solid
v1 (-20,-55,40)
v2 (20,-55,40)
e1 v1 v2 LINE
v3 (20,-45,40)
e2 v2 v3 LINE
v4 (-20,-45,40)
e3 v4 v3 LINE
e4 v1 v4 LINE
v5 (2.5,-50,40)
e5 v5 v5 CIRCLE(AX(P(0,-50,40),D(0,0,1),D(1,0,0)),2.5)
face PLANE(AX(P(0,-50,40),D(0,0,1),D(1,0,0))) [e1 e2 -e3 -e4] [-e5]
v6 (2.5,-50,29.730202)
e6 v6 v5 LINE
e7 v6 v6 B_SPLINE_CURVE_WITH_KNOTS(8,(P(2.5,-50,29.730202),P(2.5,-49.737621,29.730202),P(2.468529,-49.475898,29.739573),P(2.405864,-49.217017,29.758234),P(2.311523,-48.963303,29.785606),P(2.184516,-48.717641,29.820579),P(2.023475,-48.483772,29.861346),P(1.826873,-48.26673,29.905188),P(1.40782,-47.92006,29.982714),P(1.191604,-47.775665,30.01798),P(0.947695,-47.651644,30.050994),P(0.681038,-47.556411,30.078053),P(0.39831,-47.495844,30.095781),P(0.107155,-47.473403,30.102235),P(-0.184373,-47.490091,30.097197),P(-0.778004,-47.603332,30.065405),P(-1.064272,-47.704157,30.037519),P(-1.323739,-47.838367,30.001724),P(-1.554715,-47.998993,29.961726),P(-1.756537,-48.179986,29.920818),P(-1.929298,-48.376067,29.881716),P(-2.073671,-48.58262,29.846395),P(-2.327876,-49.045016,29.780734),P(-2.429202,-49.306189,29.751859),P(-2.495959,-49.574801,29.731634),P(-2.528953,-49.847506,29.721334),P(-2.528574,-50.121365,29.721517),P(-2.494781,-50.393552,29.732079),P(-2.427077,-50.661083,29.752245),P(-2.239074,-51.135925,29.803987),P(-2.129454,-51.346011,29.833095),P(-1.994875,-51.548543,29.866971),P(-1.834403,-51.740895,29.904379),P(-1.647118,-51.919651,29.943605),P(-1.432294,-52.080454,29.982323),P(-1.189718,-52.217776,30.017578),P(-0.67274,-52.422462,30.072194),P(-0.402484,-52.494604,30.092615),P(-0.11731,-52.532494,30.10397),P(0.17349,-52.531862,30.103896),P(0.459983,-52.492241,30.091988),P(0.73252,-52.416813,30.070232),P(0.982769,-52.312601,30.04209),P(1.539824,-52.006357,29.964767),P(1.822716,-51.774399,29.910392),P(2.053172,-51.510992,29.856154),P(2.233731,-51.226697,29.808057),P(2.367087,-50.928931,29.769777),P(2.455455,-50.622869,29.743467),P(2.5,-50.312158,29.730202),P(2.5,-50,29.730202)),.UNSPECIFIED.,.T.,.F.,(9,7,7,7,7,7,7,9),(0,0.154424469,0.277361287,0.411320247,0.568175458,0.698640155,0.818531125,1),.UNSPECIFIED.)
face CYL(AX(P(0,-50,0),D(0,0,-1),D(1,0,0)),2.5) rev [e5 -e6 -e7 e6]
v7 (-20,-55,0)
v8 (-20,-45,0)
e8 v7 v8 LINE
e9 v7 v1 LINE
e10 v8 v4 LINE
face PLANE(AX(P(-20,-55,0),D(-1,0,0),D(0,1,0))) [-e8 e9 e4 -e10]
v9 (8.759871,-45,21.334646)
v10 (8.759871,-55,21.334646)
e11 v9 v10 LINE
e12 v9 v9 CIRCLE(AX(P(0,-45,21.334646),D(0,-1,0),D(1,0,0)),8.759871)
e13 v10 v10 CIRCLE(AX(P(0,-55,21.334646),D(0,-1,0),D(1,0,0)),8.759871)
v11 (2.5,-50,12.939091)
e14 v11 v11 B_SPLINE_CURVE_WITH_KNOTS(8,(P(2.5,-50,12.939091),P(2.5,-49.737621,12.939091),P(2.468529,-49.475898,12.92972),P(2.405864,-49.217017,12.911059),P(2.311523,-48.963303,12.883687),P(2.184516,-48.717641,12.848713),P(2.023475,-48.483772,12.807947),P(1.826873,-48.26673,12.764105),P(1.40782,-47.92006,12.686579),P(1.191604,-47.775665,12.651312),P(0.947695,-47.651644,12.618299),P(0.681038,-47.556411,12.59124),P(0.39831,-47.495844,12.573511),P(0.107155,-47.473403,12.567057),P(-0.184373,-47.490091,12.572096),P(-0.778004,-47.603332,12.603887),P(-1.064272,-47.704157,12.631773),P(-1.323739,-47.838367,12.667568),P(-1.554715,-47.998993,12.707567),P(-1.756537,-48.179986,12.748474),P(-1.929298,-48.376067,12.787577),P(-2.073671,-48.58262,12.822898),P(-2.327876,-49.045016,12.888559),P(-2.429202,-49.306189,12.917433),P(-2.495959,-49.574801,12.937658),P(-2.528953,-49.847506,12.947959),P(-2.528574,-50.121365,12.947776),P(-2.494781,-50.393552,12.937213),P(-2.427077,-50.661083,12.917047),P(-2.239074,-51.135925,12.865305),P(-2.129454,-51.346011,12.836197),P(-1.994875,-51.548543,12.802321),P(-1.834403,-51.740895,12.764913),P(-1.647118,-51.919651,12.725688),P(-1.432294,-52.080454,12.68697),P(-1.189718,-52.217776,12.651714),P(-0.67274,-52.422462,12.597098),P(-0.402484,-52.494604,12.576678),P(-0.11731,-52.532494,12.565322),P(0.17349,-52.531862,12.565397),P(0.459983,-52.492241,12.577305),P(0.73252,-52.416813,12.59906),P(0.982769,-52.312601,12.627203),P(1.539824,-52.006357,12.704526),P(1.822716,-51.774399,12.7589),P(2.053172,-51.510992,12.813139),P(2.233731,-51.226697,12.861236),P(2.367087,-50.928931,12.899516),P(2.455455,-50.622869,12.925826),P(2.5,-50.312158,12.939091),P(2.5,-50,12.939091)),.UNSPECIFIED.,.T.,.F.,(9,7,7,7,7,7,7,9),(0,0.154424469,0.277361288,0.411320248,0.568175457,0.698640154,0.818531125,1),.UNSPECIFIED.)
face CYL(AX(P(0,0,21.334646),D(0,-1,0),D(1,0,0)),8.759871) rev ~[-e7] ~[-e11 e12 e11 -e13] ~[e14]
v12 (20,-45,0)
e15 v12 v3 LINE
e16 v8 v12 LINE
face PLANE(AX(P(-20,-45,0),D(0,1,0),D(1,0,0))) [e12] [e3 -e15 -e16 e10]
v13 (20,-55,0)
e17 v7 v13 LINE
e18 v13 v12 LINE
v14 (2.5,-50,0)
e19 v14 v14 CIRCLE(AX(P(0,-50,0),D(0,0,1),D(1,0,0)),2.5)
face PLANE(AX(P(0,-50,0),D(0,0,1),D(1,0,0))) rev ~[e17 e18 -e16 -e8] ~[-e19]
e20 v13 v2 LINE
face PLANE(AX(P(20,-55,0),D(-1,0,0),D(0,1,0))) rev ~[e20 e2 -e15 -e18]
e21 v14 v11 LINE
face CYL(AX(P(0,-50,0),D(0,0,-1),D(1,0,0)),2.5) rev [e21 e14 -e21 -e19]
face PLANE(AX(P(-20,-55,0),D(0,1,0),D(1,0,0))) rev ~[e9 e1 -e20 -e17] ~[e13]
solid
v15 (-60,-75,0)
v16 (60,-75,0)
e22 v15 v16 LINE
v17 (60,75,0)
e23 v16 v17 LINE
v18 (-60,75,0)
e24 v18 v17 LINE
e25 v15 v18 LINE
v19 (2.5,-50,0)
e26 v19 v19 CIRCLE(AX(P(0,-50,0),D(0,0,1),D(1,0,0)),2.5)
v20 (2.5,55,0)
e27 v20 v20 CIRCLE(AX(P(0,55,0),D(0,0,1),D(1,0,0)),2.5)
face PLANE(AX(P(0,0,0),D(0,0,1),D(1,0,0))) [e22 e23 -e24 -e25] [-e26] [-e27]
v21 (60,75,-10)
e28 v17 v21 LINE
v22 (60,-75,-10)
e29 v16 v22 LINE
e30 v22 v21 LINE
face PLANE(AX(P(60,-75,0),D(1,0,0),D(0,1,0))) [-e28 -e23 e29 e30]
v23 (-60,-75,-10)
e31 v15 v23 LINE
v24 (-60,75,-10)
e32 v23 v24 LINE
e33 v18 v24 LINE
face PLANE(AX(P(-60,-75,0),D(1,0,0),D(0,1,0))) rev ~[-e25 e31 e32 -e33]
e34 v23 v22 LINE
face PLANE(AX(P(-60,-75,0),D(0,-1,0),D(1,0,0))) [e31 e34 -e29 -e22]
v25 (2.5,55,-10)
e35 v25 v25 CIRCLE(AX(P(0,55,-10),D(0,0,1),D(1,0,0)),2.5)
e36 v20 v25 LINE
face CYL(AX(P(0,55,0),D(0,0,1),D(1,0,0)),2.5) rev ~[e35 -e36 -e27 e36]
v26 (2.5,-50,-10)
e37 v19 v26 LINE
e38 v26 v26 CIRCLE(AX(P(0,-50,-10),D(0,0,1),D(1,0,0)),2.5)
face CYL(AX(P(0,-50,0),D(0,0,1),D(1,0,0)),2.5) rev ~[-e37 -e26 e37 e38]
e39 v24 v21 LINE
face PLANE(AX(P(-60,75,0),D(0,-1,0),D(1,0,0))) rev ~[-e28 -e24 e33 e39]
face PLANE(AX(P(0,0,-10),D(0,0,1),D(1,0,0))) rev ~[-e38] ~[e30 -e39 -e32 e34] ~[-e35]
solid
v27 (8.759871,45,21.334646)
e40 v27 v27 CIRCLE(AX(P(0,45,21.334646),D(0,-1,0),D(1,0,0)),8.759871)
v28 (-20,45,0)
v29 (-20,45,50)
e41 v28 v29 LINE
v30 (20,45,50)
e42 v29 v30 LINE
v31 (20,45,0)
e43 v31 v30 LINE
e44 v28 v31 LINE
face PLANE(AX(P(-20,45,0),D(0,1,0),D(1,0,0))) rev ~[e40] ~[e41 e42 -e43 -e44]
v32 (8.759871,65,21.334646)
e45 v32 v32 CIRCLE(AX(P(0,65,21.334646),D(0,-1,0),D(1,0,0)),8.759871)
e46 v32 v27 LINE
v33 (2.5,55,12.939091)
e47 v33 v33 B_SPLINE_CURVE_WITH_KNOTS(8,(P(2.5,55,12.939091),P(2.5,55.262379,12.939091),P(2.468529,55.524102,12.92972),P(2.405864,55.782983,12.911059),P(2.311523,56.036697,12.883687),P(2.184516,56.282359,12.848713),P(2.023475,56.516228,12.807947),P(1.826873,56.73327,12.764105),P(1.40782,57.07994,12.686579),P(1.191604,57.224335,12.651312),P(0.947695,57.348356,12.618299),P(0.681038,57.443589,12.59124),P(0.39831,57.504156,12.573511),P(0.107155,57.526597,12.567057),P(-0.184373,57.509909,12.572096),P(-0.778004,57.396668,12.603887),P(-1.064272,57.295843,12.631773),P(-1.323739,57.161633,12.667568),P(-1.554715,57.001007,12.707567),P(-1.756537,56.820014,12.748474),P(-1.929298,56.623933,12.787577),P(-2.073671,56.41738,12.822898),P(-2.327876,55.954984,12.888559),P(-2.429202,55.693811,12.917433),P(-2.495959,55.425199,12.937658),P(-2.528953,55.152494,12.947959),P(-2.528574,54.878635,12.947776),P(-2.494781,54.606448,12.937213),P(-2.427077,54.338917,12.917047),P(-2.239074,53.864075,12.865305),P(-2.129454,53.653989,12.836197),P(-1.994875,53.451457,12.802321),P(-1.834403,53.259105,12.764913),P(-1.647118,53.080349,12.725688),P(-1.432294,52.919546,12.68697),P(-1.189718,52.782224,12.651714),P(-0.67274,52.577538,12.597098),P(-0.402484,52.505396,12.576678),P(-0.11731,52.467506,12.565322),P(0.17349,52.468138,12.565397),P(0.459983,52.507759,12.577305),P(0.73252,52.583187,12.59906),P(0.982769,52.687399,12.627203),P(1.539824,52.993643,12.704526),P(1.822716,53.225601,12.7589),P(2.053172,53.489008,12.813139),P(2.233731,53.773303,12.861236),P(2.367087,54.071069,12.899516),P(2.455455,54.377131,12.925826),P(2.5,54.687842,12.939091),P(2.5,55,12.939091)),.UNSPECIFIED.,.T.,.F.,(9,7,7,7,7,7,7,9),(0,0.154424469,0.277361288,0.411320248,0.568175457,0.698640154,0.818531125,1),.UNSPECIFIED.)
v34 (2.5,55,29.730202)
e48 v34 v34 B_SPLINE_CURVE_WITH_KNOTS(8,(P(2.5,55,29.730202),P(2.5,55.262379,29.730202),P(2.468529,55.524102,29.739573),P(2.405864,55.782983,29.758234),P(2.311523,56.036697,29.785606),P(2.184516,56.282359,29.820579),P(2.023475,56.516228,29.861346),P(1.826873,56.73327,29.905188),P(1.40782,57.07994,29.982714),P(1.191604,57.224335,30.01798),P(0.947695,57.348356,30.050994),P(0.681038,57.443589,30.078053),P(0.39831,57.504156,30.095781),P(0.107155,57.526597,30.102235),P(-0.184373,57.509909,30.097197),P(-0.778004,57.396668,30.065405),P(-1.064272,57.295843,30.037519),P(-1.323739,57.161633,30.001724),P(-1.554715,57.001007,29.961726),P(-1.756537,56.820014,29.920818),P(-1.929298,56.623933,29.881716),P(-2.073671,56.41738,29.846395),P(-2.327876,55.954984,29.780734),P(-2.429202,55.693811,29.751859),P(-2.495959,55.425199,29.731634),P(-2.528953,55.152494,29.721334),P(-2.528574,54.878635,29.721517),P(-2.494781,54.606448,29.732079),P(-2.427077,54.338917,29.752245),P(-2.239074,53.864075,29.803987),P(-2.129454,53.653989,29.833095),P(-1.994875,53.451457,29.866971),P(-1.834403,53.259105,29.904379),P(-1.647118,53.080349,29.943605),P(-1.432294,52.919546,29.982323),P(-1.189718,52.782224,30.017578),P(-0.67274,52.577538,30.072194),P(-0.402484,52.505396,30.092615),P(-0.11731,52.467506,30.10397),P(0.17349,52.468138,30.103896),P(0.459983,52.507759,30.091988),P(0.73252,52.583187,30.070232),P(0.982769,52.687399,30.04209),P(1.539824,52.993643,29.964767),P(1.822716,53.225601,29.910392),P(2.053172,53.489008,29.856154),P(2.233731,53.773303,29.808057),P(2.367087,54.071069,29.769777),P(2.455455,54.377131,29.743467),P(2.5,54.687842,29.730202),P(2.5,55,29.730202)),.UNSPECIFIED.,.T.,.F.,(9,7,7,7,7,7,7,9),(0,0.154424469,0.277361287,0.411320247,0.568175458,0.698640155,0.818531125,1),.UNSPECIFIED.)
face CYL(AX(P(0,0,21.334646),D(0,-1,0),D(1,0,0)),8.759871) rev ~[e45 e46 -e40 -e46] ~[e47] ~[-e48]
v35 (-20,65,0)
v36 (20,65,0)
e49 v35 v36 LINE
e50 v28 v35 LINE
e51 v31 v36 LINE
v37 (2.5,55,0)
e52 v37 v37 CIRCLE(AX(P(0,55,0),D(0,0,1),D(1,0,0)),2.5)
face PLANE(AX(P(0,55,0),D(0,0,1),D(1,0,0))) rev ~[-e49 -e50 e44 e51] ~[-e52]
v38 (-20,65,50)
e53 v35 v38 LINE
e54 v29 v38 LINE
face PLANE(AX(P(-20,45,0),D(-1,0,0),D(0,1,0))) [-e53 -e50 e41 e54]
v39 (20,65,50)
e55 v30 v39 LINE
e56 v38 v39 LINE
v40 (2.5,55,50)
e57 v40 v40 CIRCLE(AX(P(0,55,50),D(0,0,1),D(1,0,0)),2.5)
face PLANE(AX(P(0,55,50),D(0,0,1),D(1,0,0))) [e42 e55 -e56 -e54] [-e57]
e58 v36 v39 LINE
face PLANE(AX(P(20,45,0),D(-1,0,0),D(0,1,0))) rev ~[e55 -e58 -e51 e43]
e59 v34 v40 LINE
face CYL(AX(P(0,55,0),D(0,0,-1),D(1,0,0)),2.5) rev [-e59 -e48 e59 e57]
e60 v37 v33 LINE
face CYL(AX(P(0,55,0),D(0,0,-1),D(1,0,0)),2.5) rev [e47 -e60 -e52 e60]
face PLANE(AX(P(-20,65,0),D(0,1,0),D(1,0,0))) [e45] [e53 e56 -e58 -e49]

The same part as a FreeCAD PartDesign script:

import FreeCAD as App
import Part
import Sketcher
from FreeCAD import Vector


def add_polygon(sketch, points):
    """Adds a closed chain of lines whose ends are joined by coincident constraints."""
    first, n = sketch.GeometryCount, len(points)
    for a, b in zip(points, points[1:] + points[:1]):
        sketch.addGeometry(Part.LineSegment(App.Vector(*a, 0), App.Vector(*b, 0)), False)
    for i in range(n):
        sketch.addConstraint(Sketcher.Constraint("Coincident", first + i, 2, first + (i + 1) % n, 1))

doc = App.newDocument("Part")
params = doc.addObject("Spreadsheet::Sheet", "Params")
for row, (alias, value) in enumerate([
    ("sketch1_width", "120 mm"),
    ("sketch1_height", "150 mm"),
    ("pad1_length", "10 mm"),
    ("sketch2_diameter", "5 mm"),
    ("pocket1_length", "25 mm"),
    ("sketch3_diameter", "5 mm"),
    ("pocket2_length", "25 mm"),
    ("pocket3_length", "68.3 mm"),
    ("sketch5_diameter", "5 mm"),
    ("sketch5_width", "40 mm"),
    ("sketch5_height", "20 mm"),
    ("pad2_length", "50 mm"),
    ("sketch6_diameter", "5 mm"),
    ("sketch6_width", "40 mm"),
    ("sketch6_height", "10 mm"),
    ("pad3_length", "40 mm"),
    ("pad4_length", "160 mm"),
], start=1):
    params.set(f"A{row}", alias)
    params.set(f"B{row}", "=" + value)
    params.setAlias(f"B{row}", alias)

body = doc.addObject("PartDesign::Body", "Body")

sketch1 = doc.addObject("Sketcher::SketchObject", "Sketch")
body.addObject(sketch1)
sketch1.AttachmentSupport = (doc.XY_Plane, [""])
sketch1.MapMode = "FlatFace"
add_polygon(sketch1, [(-60, 75), (-60, -75), (60, -75), (60, 75)])
sketch1.addConstraint(Sketcher.Constraint("Vertical", 0))
sketch1.addConstraint(Sketcher.Constraint("Horizontal", 1))
sketch1.addConstraint(Sketcher.Constraint("Vertical", 2))
sketch1.addConstraint(Sketcher.Constraint("Horizontal", 3))
sketch1.addConstraint(Sketcher.Constraint("Symmetric", 0, 2, 2, 2, -1, 1))
sketch1.addConstraint(Sketcher.Constraint("DistanceX", 1, 1, 1, 2, 120.0))
sketch1.addConstraint(Sketcher.Constraint("DistanceY", 0, 2, 0, 1, 150.0))
sketch1.setExpression("Constraints[9]", "Params.sketch1_width")
sketch1.setExpression("Constraints[10]", "Params.sketch1_height")
pad1 = doc.addObject("PartDesign::Pad", "Pad")
body.addObject(pad1)
pad1.Profile = sketch1
pad1.setExpression("Length", "Params.pad1_length")
pad1.Reversed = True

sketch2 = doc.addObject("Sketcher::SketchObject", "Sketch001")
body.addObject(sketch2)
sketch2.AttachmentSupport = (doc.XY_Plane, [""])
sketch2.MapMode = "FlatFace"
sketch2.addGeometry(Part.Circle(Vector(0, 55, 0), Vector(0, 0, 1), 2.5), False)
sketch2.addConstraint(Sketcher.Constraint("PointOnObject", 0, 3, -2))
sketch2.addConstraint(Sketcher.Constraint("Diameter", 0, 5.0))
sketch2.addConstraint(Sketcher.Constraint("DistanceY", -1, 1, 0, 3, 55.0))
sketch2.setExpression("Constraints[1]", "Params.sketch2_diameter")
pocket1 = doc.addObject("PartDesign::Pocket", "Pocket")
body.addObject(pocket1)
pocket1.Profile = sketch2
pocket1.setExpression("Length", "Params.pocket1_length")

sketch3 = doc.addObject("Sketcher::SketchObject", "Sketch002")
body.addObject(sketch3)
sketch3.AttachmentSupport = (doc.XY_Plane, [""])
sketch3.MapMode = "FlatFace"
sketch3.addGeometry(Part.Circle(Vector(0, -50, 0), Vector(0, 0, 1), 2.5), False)
sketch3.addConstraint(Sketcher.Constraint("PointOnObject", 0, 3, -2))
sketch3.addConstraint(Sketcher.Constraint("Diameter", 0, 5.0))
sketch3.addConstraint(Sketcher.Constraint("DistanceY", 0, 3, -1, 1, 50.0))
sketch3.setExpression("Constraints[1]", "Params.sketch3_diameter")
pocket2 = doc.addObject("PartDesign::Pocket", "Pocket001")
body.addObject(pocket2)
pocket2.Profile = sketch3
pocket2.setExpression("Length", "Params.pocket2_length")

sketch4 = doc.addObject("Sketcher::SketchObject", "Sketch003")
body.addObject(sketch4)
sketch4.AttachmentSupport = (doc.XZ_Plane, [""])
sketch4.MapMode = "FlatFace"
sketch4.addGeometry(Part.Circle(Vector(0, 21.334646, 0), Vector(0, 0, 1), 8.759871), False)
sketch4.addConstraint(Sketcher.Constraint("PointOnObject", 0, 3, -2))
sketch4.addConstraint(Sketcher.Constraint("Diameter", 0, 17.519743))
sketch4.addConstraint(Sketcher.Constraint("DistanceY", -1, 1, 0, 3, 21.334646))
pocket3 = doc.addObject("PartDesign::Pocket", "Pocket002")
body.addObject(pocket3)
pocket3.Profile = sketch4
pocket3.setExpression("Length", "Params.pocket3_length")
pocket3.Reversed = True
body2 = doc.addObject("PartDesign::Body", "Body001")

sketch5 = doc.addObject("Sketcher::SketchObject", "Sketch004")
body2.addObject(sketch5)
sketch5.AttachmentSupport = (doc.getObject("XY_Plane001"), [""])
sketch5.MapMode = "FlatFace"
add_polygon(sketch5, [(-20, 65), (-20, 45), (20, 45), (20, 65)])
sketch5.addGeometry(Part.Circle(Vector(0, 55, 0), Vector(0, 0, 1), 2.5), False)
sketch5.addConstraint(Sketcher.Constraint("Vertical", 0))
sketch5.addConstraint(Sketcher.Constraint("Horizontal", 1))
sketch5.addConstraint(Sketcher.Constraint("Vertical", 2))
sketch5.addConstraint(Sketcher.Constraint("Horizontal", 3))
sketch5.addConstraint(Sketcher.Constraint("PointOnObject", 4, 3, -2))
sketch5.addConstraint(Sketcher.Constraint("Diameter", 4, 5.0))
sketch5.addConstraint(Sketcher.Constraint("DistanceX", 1, 1, 1, 2, 40.0))
sketch5.addConstraint(Sketcher.Constraint("DistanceY", 0, 2, 0, 1, 20.0))
sketch5.addConstraint(Sketcher.Constraint("DistanceY", -1, 1, 4, 3, 55.0))
sketch5.addConstraint(Sketcher.Constraint("DistanceX", 0, 2, -1, 1, 20.0))
sketch5.addConstraint(Sketcher.Constraint("DistanceY", -1, 1, 0, 2, 45.0))
sketch5.setExpression("Constraints[9]", "Params.sketch5_diameter")
sketch5.setExpression("Constraints[10]", "Params.sketch5_width")
sketch5.setExpression("Constraints[11]", "Params.sketch5_height")
pad2 = doc.addObject("PartDesign::Pad", "Pad001")
body2.addObject(pad2)
pad2.Profile = sketch5
pad2.setExpression("Length", "Params.pad2_length")
body3 = doc.addObject("PartDesign::Body", "Body002")

sketch6 = doc.addObject("Sketcher::SketchObject", "Sketch005")
body3.addObject(sketch6)
sketch6.AttachmentSupport = (doc.getObject("XY_Plane002"), [""])
sketch6.MapMode = "FlatFace"
add_polygon(sketch6, [(-20, -45), (-20, -55), (20, -55), (20, -45)])
sketch6.addGeometry(Part.Circle(Vector(0, -50, 0), Vector(0, 0, 1), 2.5), False)
sketch6.addConstraint(Sketcher.Constraint("Vertical", 0))
sketch6.addConstraint(Sketcher.Constraint("Horizontal", 1))
sketch6.addConstraint(Sketcher.Constraint("Vertical", 2))
sketch6.addConstraint(Sketcher.Constraint("Horizontal", 3))
sketch6.addConstraint(Sketcher.Constraint("PointOnObject", 4, 3, -2))
sketch6.addConstraint(Sketcher.Constraint("Diameter", 4, 5.0))
sketch6.addConstraint(Sketcher.Constraint("DistanceX", 1, 1, 1, 2, 40.0))
sketch6.addConstraint(Sketcher.Constraint("DistanceY", 0, 2, 0, 1, 10.0))
sketch6.addConstraint(Sketcher.Constraint("DistanceY", 4, 3, -1, 1, 50.0))
sketch6.addConstraint(Sketcher.Constraint("DistanceX", 0, 2, -1, 1, 20.0))
sketch6.addConstraint(Sketcher.Constraint("DistanceY", 0, 2, -1, 1, 55.0))
sketch6.setExpression("Constraints[9]", "Params.sketch6_diameter")
sketch6.setExpression("Constraints[10]", "Params.sketch6_width")
sketch6.setExpression("Constraints[11]", "Params.sketch6_height")
pad3 = doc.addObject("PartDesign::Pad", "Pad002")
body3.addObject(pad3)
pad3.Profile = sketch6
pad3.setExpression("Length", "Params.pad3_length")
body4 = doc.addObject("PartDesign::Body", "Body003")

sketch7 = doc.addObject("Sketcher::SketchObject", "Sketch006")
body4.addObject(sketch7)
sketch7.AttachmentSupport = (doc.getObject("XZ_Plane003"), [""])
sketch7.MapMode = "FlatFace"
sketch7.addGeometry(Part.Circle(Vector(0, 21.334646, 0), Vector(0, 0, 1), 8.759871), False)
sketch7.addConstraint(Sketcher.Constraint("PointOnObject", 0, 3, -2))
sketch7.addConstraint(Sketcher.Constraint("Diameter", 0, 17.519743))
sketch7.addConstraint(Sketcher.Constraint("DistanceY", -1, 1, 0, 3, 21.334646))
pad4 = doc.addObject("PartDesign::Pad", "Pad003")
body4.addObject(pad4)
pad4.Profile = sketch7
pad4.setExpression("Length", "Params.pad4_length")
pad4.Midplane = True
doc.recompute()

body5 = doc.addObject("PartDesign::Body", "Body004")
body5.BaseFeature = body4
boolean = doc.addObject("PartDesign::Boolean", "Boolean")
body2.addObject(boolean)
boolean.Type = "Cut"
boolean.addObjects([body5])
doc.recompute()

boolean2 = doc.addObject("PartDesign::Boolean", "Boolean001")
body3.addObject(boolean2)
boolean2.Type = "Cut"
boolean2.addObjects([body4])

doc.recompute()
